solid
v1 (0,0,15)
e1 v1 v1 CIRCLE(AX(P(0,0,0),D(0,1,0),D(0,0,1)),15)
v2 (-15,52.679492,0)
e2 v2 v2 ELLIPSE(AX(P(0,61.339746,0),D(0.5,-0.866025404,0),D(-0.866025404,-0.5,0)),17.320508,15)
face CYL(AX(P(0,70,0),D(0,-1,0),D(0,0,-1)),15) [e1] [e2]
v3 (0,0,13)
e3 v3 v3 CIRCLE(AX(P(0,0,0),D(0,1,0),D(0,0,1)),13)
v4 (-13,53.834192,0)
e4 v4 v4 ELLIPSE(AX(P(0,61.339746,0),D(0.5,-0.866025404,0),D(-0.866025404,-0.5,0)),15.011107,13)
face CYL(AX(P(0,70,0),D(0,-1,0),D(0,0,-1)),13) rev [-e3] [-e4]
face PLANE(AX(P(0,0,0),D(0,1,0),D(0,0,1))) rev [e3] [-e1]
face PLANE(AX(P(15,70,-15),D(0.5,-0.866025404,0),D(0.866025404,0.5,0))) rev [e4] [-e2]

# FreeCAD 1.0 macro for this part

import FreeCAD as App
import Part
import Sketcher
Q = App.Units.Quantity


def add_polygon(sketch, points):
    """Adds a closed chain of lines whose ends are joined by coincident constraints."""
    first, n = sketch.GeometryCount, len(points)
    for a, b in zip(points, points[1:] + points[:1]):
        sketch.addGeometry(Part.LineSegment(App.Vector(*a, 0), App.Vector(*b, 0)), False)
    for i in range(n):
        sketch.addConstraint(Sketcher.Constraint("Coincident", first + i, 2, first + (i + 1) % n, 1))

doc = App.newDocument("Part")
params = doc.addObject("Spreadsheet::Sheet", "Params")
for row, (alias, value) in enumerate([
    ("sketch1_diameter", "30 mm"),
    ("sketch1_diameter2", "26 mm"),
    ("pad1_length", "70 mm"),
    ("sketch2_width", "30 mm"),
], start=1):
    params.set(f"A{row}", alias)
    params.set(f"B{row}", "=" + value)
    params.setAlias(f"B{row}", alias)

body = doc.addObject("PartDesign::Body", "Body")

# Sketch on XZ plane
sketch1 = body.newObject("Sketcher::SketchObject", "Sketch")
sketch1.AttachmentSupport = (doc.getObject("XZ_Plane"), [""])
sketch1.MapMode = "FlatFace"
sketch1.addGeometry(Part.Circle(App.Vector(0, 0, 0), App.Vector(0, 0, 1), 15), False)
sketch1.addGeometry(Part.Circle(App.Vector(0, 0, 0), App.Vector(0, 0, 1), 13), False)
sketch1.addConstraint(Sketcher.Constraint("Coincident", 0, 3, -1, 1))
sketch1.addConstraint(Sketcher.Constraint("Coincident", 1, 3, -1, 1))
sketch1.addConstraint(Sketcher.Constraint("Diameter", 0, Q("30 mm")))
sketch1.addConstraint(Sketcher.Constraint("Diameter", 1, Q("26 mm")))
sketch1.setExpression("Constraints[2]", "Params.sketch1_diameter")
sketch1.setExpression("Constraints[3]", "Params.sketch1_diameter2")
pad1 = body.newObject("PartDesign::Pad", "Pad")
pad1.Profile = sketch1
pad1.setExpression("Length", "Params.pad1_length")
pad1.Reversed = True

# Sketch on XY plane
sketch2 = body.newObject("Sketcher::SketchObject", "Sketch001")
sketch2.AttachmentSupport = (doc.getObject("XY_Plane"), [""])
sketch2.MapMode = "FlatFace"
add_polygon(sketch2, [(15, 70), (-15, 70), (-15, 53)])  # lines 0-2
sketch2.addConstraint(Sketcher.Constraint("Horizontal", 0))
sketch2.addConstraint(Sketcher.Constraint("Vertical", 1))
sketch2.addConstraint(Sketcher.Constraint("DistanceX", 0, 2, 0, 1, Q("30 mm")))
sketch2.addConstraint(Sketcher.Constraint("Angle", 2, Q("30 deg")))
sketch2.addConstraint(Sketcher.Constraint("DistanceX", 0, 2, -1, 1, Q("15 mm")))
sketch2.addConstraint(Sketcher.Constraint("DistanceY", -1, 1, 0, 2, Q("70 mm")))
sketch2.setExpression("Constraints[5]", "Params.sketch2_width")
pocket1 = body.newObject("PartDesign::Pocket", "Pocket")
pocket1.Profile = sketch2
pocket1.Type = "ThroughAll"
pocket1.Midplane = True

doc.recompute()
